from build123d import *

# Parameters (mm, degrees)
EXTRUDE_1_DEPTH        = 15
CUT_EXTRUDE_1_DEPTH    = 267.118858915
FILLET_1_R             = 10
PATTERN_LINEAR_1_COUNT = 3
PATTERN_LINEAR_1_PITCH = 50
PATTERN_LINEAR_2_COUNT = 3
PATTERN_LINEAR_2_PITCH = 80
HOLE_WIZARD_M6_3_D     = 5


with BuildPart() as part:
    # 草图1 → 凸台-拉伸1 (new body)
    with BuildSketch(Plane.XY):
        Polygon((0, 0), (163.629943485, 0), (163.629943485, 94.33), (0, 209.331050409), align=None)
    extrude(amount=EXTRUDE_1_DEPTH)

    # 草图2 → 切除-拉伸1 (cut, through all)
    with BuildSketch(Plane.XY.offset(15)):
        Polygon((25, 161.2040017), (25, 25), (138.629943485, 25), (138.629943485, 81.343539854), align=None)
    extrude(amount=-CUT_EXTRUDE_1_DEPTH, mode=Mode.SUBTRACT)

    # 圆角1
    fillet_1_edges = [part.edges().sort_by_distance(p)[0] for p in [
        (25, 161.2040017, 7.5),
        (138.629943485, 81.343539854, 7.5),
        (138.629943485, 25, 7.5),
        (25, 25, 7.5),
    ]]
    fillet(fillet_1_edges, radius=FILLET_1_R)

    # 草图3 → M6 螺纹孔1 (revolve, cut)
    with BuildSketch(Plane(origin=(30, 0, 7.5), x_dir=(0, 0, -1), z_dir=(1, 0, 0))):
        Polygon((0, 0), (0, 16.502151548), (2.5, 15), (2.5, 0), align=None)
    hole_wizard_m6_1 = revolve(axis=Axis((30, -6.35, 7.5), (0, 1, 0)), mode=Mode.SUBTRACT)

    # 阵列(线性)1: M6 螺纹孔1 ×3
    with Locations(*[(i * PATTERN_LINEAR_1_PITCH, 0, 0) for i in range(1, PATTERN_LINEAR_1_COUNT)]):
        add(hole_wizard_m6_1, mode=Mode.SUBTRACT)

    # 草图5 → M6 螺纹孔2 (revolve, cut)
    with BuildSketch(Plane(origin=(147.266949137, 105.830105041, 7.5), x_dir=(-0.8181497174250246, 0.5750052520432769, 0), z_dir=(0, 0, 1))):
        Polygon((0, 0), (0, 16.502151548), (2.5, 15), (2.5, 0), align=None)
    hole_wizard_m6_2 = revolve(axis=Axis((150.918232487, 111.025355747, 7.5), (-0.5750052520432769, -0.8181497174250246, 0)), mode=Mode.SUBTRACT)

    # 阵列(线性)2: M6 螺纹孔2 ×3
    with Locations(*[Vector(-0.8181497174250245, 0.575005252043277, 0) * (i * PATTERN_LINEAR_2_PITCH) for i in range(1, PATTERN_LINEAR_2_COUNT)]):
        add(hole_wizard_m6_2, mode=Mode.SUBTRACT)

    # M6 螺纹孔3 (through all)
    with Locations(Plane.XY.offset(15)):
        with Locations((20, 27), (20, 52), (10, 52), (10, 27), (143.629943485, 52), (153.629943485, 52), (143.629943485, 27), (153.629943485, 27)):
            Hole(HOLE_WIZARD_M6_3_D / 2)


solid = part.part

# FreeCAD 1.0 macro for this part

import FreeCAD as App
import Part
import Sketcher
Q = App.Units.Quantity


def edges_at(feature, points):
    """Names of the edges that pass closest to the given points."""
    edges = feature.Shape.Edges
    near = lambda p: min(range(len(edges)), key=lambda i: edges[i].distToShape(Part.Vertex(*p))[0])
    return sorted({f"Edge{near(p) + 1}" for p in points})

doc = App.newDocument("Part")
body = doc.addObject("PartDesign::Body", "Body")

sketch1 = body.newObject("Sketcher::SketchObject", "Sketch")
sketch1.AttachmentSupport = (doc.getObject("XY_Plane"), [""])
sketch1.MapMode = "FlatFace"
sketch1.addGeometry([
    Part.LineSegment(App.Vector(0, 0, 0), App.Vector(163.629943, 0, 0)),
    Part.LineSegment(App.Vector(163.629943, 0, 0), App.Vector(163.629943, 94.33, 0)),
    Part.LineSegment(App.Vector(163.629943, 94.33, 0), App.Vector(0, 209.33105, 0)),
    Part.LineSegment(App.Vector(0, 209.33105, 0), App.Vector(0, 0, 0)),
], False)
sketch1.addConstraint([
    Sketcher.Constraint("Coincident", 0, 2, 1, 1),
    Sketcher.Constraint("Coincident", 1, 2, 2, 1),
    Sketcher.Constraint("Coincident", 2, 2, 3, 1),
    Sketcher.Constraint("Coincident", 3, 2, 0, 1),
    Sketcher.Constraint("Horizontal", 0),
    Sketcher.Constraint("Vertical", 1),
    Sketcher.Constraint("Vertical", 3),
    Sketcher.Constraint("Coincident", 3, 2, -1, 1),
    Sketcher.Constraint("Distance", 2, Q("200 mm")),
    Sketcher.Constraint("Angle", 2, Q("144.9 deg")),
    Sketcher.Constraint("DistanceY", 1, 1, 1, 2, Q("94.33 mm")),
])
pad1 = body.newObject("PartDesign::Pad", "Pad")
pad1.Profile = sketch1
pad1.Length = 15

sketch2 = body.newObject("Sketcher::SketchObject", "Sketch001")
sketch2.AttachmentSupport = (doc.getObject("XY_Plane"), [""])
sketch2.MapMode = "FlatFace"
sketch2.AttachmentOffset = App.Placement(App.Vector(0, 0, 15), App.Rotation())
sketch2.addGeometry([
    Part.LineSegment(App.Vector(25, 161.204002, 0), App.Vector(25, 25, 0)),
    Part.LineSegment(App.Vector(25, 25, 0), App.Vector(138.629943, 25, 0)),
    Part.LineSegment(App.Vector(138.629943, 25, 0), App.Vector(138.629943, 81.34354, 0)),
    Part.LineSegment(App.Vector(138.629943, 81.34354, 0), App.Vector(25, 161.204002, 0)),
], False)
sketch2.addConstraint([
    Sketcher.Constraint("Coincident", 0, 2, 1, 1),
    Sketcher.Constraint("Coincident", 1, 2, 2, 1),
    Sketcher.Constraint("Coincident", 2, 2, 3, 1),
    Sketcher.Constraint("Coincident", 3, 2, 0, 1),
    Sketcher.Constraint("Vertical", 0),
    Sketcher.Constraint("Horizontal", 1),
    Sketcher.Constraint("Vertical", 2),
    Sketcher.Constraint("DistanceX", -1, 1, 0, 2, Q("25 mm")),
    Sketcher.Constraint("DistanceY", -1, 1, 0, 2, Q("25 mm")),
    Sketcher.Constraint("Angle", 3, Q("144.9 deg")),
    Sketcher.Constraint("DistanceY", 0, 2, 0, 1, Q("136.204002 mm")),
    Sketcher.Constraint("DistanceY", 2, 1, 2, 2, Q("56.34354 mm")),
])
pocket1 = body.newObject("PartDesign::Pocket", "Pocket")
pocket1.Profile = sketch2
pocket1.Type = "ThroughAll"
doc.recompute()

fillet = body.newObject("PartDesign::Fillet", "Fillet")
fillet.Base = (pocket1, edges_at(pocket1, [
    (25, 161.204, 7.5),
    (138.63, 81.344, 7.5),
    (138.63, 25, 7.5),
    (25, 25, 7.5),
]))
fillet.Radius = 10

sketch3 = body.newObject("Sketcher::SketchObject", "Sketch002")
sketch3.AttachmentSupport = (doc.getObject("YZ_Plane"), [""])
sketch3.MapMode = "FlatFace"
sketch3.AttachmentOffset = App.Placement(App.Vector(0, 0, 30), App.Rotation())
sketch3.addGeometry([
    Part.LineSegment(App.Vector(16.502152, 7.5, 0), App.Vector(0, 7.5, 0)),
    Part.LineSegment(App.Vector(0, 7.5, 0), App.Vector(0, 5, 0)),
    Part.LineSegment(App.Vector(0, 5, 0), App.Vector(15, 5, 0)),
    Part.LineSegment(App.Vector(15, 5, 0), App.Vector(16.502152, 7.5, 0)),
], False)
sketch3.addGeometry(Part.LineSegment(App.Vector(0, 7.5, 0), App.Vector(16.502152, 7.5, 0)), True)
sketch3.addConstraint([
    Sketcher.Constraint("Coincident", 0, 2, 1, 1),
    Sketcher.Constraint("Coincident", 1, 2, 2, 1),
    Sketcher.Constraint("Coincident", 2, 2, 3, 1),
    Sketcher.Constraint("Coincident", 3, 2, 0, 1),
    Sketcher.Constraint("Horizontal", 0),
    Sketcher.Constraint("Vertical", 1),
    Sketcher.Constraint("Horizontal", 2),
    Sketcher.Constraint("Horizontal", 4),
    Sketcher.Constraint("Coincident", 4, 1, 0, 2),
    Sketcher.Constraint("PointOnObject", 0, 2, -2),
    Sketcher.Constraint("Equal", 0, 4),
    Sketcher.Constraint("DistanceX", 2, 1, 2, 2, Q("15 mm")),
    Sketcher.Constraint("Angle", 3, Q("59 deg")),
    Sketcher.Constraint("DistanceY", 1, 2, 1, 1, Q("2.5 mm")),
    Sketcher.Constraint("DistanceY", -1, 1, 1, 2, Q("5 mm")),
])
groove = body.newObject("PartDesign::Groove", "Groove")
groove.Profile = sketch3
groove.ReferenceAxis = (sketch3, ["Axis0"])
groove.Angle = 360
doc.recompute()

linearpattern = body.newObject("PartDesign::LinearPattern", "LinearPattern")
linearpattern.Originals = [groove]
linearpattern.Direction = (doc.getObject("X_Axis"), [""])
linearpattern.Mode = "offset"
linearpattern.Offset = 50
linearpattern.Occurrences = 3
body.Tip = linearpattern

sketch4 = body.newObject("Sketcher::SketchObject", "Sketch003")
sketch4.AttachmentSupport = (doc.getObject("XY_Plane"), [""])
sketch4.MapMode = "FlatFace"
sketch4.AttachmentOffset = App.Placement(App.Vector(0, 0, 7.5), App.Rotation())
sketch4.addGeometry([
    Part.LineSegment(App.Vector(137.778125, 92.328874, 0), App.Vector(147.266949, 105.830105, 0)),
    Part.LineSegment(App.Vector(147.266949, 105.830105, 0), App.Vector(145.221575, 107.267618, 0)),
    Part.LineSegment(App.Vector(145.221575, 107.267618, 0), App.Vector(136.596496, 94.995372, 0)),
    Part.LineSegment(App.Vector(136.596496, 94.995372, 0), App.Vector(137.778125, 92.328874, 0)),
], False)
sketch4.addGeometry(Part.LineSegment(App.Vector(147.266949, 105.830105, 0), App.Vector(137.778125, 92.328874, 0)), True)
sketch4.addConstraint([
    Sketcher.Constraint("Coincident", 0, 2, 1, 1),
    Sketcher.Constraint("Coincident", 1, 2, 2, 1),
    Sketcher.Constraint("Coincident", 2, 2, 3, 1),
    Sketcher.Constraint("Coincident", 3, 2, 0, 1),
    Sketcher.Constraint("Coincident", 4, 1, 0, 2),
    Sketcher.Constraint("Coincident", 4, 2, 3, 2),
    Sketcher.Constraint("Perpendicular", 0, 1),
    Sketcher.Constraint("Perpendicular", 1, 2),
    Sketcher.Constraint("Distance", 2, Q("15 mm")),
    Sketcher.Constraint("Angle", 0, Q("54.9 deg")),
    Sketcher.Constraint("Angle", 3, Q("-66.1 deg")),
    Sketcher.Constraint("Distance", 1, Q("2.5 mm")),
    Sketcher.Constraint("DistanceX", -1, 1, 0, 2, Q("147.266949 mm")),
    Sketcher.Constraint("DistanceY", -1, 1, 1, 2, Q("107.267618 mm")),
])
groove2 = body.newObject("PartDesign::Groove", "Groove001")
groove2.Profile = sketch4
groove2.ReferenceAxis = (sketch4, ["Axis0"])
groove2.Angle = 360
doc.recompute()

datumline = body.newObject("PartDesign::Line", "DatumLine")
datumline.Placement = App.Placement(App.Vector(0, 0, 0), App.Rotation(App.Vector(0, 0, 1), App.Vector(-0.818149717, 0.575005252, 0)))
linearpattern2 = body.newObject("PartDesign::LinearPattern", "LinearPattern001")
linearpattern2.Originals = [groove2]
linearpattern2.Direction = (datumline, [""])
linearpattern2.Mode = "offset"
linearpattern2.Offset = 80
linearpattern2.Occurrences = 3
body.Tip = linearpattern2

sketch5 = body.newObject("Sketcher::SketchObject", "Sketch004")
sketch5.AttachmentSupport = (doc.getObject("XY_Plane"), [""])
sketch5.MapMode = "FlatFace"
sketch5.AttachmentOffset = App.Placement(App.Vector(0, 0, 15), App.Rotation())
sketch5.addGeometry([
    Part.Circle(App.Vector(20, 27, 0), App.Vector(0, 0, 1), 2.5),
    Part.Circle(App.Vector(20, 52, 0), App.Vector(0, 0, 1), 2.5),
    Part.Circle(App.Vector(10, 52, 0), App.Vector(0, 0, 1), 2.5),
    Part.Circle(App.Vector(10, 27, 0), App.Vector(0, 0, 1), 2.5),
    Part.Circle(App.Vector(143.629943, 52, 0), App.Vector(0, 0, 1), 2.5),
    Part.Circle(App.Vector(153.629943, 52, 0), App.Vector(0, 0, 1), 2.5),
    Part.Circle(App.Vector(143.629943, 27, 0), App.Vector(0, 0, 1), 2.5),
    Part.Circle(App.Vector(153.629943, 27, 0), App.Vector(0, 0, 1), 2.5),
], False)
sketch5.addConstraint([
    Sketcher.Constraint("Equal", 0, 1),
    Sketcher.Constraint("Equal", 1, 2),
    Sketcher.Constraint("Equal", 2, 3),
    Sketcher.Constraint("Equal", 3, 4),
    Sketcher.Constraint("Equal", 4, 5),
    Sketcher.Constraint("Equal", 5, 6),
    Sketcher.Constraint("Equal", 6, 7),
    Sketcher.Constraint("Horizontal", 1, 3, 2, 3),
    Sketcher.Constraint("Horizontal", 0, 3, 3, 3),
    Sketcher.Constraint("Horizontal", 2, 3, 4, 3),
    Sketcher.Constraint("Horizontal", 4, 3, 5, 3),
    Sketcher.Constraint("Horizontal", 3, 3, 6, 3),
    Sketcher.Constraint("Horizontal", 6, 3, 7, 3),
    Sketcher.Constraint("Vertical", 0, 3, 1, 3),
    Sketcher.Constraint("Vertical", 2, 3, 3, 3),
    Sketcher.Constraint("Vertical", 4, 3, 6, 3),
    Sketcher.Constraint("Vertical", 5, 3, 7, 3),
    Sketcher.Constraint("Diameter", 0, Q("5 mm")),
    Sketcher.Constraint("DistanceX", -1, 1, 0, 3, Q("20 mm")),
    Sketcher.Constraint("DistanceY", -1, 1, 0, 3, Q("27 mm")),
    Sketcher.Constraint("DistanceY", -1, 1, 1, 3, Q("52 mm")),
    Sketcher.Constraint("DistanceX", -1, 1, 2, 3, Q("10 mm")),
    Sketcher.Constraint("DistanceX", 4, 3, 5, 3, Q("10 mm")),
    Sketcher.Constraint("DistanceX", -1, 1, 4, 3, Q("143.629943 mm")),
])
doc.recompute()
hole = body.newObject("PartDesign::Hole", "Hole")
hole.Profile = sketch5
hole.ThreadType = "None"
hole.Diameter = 5
hole.DepthType = "ThroughAll"

doc.recompute()
